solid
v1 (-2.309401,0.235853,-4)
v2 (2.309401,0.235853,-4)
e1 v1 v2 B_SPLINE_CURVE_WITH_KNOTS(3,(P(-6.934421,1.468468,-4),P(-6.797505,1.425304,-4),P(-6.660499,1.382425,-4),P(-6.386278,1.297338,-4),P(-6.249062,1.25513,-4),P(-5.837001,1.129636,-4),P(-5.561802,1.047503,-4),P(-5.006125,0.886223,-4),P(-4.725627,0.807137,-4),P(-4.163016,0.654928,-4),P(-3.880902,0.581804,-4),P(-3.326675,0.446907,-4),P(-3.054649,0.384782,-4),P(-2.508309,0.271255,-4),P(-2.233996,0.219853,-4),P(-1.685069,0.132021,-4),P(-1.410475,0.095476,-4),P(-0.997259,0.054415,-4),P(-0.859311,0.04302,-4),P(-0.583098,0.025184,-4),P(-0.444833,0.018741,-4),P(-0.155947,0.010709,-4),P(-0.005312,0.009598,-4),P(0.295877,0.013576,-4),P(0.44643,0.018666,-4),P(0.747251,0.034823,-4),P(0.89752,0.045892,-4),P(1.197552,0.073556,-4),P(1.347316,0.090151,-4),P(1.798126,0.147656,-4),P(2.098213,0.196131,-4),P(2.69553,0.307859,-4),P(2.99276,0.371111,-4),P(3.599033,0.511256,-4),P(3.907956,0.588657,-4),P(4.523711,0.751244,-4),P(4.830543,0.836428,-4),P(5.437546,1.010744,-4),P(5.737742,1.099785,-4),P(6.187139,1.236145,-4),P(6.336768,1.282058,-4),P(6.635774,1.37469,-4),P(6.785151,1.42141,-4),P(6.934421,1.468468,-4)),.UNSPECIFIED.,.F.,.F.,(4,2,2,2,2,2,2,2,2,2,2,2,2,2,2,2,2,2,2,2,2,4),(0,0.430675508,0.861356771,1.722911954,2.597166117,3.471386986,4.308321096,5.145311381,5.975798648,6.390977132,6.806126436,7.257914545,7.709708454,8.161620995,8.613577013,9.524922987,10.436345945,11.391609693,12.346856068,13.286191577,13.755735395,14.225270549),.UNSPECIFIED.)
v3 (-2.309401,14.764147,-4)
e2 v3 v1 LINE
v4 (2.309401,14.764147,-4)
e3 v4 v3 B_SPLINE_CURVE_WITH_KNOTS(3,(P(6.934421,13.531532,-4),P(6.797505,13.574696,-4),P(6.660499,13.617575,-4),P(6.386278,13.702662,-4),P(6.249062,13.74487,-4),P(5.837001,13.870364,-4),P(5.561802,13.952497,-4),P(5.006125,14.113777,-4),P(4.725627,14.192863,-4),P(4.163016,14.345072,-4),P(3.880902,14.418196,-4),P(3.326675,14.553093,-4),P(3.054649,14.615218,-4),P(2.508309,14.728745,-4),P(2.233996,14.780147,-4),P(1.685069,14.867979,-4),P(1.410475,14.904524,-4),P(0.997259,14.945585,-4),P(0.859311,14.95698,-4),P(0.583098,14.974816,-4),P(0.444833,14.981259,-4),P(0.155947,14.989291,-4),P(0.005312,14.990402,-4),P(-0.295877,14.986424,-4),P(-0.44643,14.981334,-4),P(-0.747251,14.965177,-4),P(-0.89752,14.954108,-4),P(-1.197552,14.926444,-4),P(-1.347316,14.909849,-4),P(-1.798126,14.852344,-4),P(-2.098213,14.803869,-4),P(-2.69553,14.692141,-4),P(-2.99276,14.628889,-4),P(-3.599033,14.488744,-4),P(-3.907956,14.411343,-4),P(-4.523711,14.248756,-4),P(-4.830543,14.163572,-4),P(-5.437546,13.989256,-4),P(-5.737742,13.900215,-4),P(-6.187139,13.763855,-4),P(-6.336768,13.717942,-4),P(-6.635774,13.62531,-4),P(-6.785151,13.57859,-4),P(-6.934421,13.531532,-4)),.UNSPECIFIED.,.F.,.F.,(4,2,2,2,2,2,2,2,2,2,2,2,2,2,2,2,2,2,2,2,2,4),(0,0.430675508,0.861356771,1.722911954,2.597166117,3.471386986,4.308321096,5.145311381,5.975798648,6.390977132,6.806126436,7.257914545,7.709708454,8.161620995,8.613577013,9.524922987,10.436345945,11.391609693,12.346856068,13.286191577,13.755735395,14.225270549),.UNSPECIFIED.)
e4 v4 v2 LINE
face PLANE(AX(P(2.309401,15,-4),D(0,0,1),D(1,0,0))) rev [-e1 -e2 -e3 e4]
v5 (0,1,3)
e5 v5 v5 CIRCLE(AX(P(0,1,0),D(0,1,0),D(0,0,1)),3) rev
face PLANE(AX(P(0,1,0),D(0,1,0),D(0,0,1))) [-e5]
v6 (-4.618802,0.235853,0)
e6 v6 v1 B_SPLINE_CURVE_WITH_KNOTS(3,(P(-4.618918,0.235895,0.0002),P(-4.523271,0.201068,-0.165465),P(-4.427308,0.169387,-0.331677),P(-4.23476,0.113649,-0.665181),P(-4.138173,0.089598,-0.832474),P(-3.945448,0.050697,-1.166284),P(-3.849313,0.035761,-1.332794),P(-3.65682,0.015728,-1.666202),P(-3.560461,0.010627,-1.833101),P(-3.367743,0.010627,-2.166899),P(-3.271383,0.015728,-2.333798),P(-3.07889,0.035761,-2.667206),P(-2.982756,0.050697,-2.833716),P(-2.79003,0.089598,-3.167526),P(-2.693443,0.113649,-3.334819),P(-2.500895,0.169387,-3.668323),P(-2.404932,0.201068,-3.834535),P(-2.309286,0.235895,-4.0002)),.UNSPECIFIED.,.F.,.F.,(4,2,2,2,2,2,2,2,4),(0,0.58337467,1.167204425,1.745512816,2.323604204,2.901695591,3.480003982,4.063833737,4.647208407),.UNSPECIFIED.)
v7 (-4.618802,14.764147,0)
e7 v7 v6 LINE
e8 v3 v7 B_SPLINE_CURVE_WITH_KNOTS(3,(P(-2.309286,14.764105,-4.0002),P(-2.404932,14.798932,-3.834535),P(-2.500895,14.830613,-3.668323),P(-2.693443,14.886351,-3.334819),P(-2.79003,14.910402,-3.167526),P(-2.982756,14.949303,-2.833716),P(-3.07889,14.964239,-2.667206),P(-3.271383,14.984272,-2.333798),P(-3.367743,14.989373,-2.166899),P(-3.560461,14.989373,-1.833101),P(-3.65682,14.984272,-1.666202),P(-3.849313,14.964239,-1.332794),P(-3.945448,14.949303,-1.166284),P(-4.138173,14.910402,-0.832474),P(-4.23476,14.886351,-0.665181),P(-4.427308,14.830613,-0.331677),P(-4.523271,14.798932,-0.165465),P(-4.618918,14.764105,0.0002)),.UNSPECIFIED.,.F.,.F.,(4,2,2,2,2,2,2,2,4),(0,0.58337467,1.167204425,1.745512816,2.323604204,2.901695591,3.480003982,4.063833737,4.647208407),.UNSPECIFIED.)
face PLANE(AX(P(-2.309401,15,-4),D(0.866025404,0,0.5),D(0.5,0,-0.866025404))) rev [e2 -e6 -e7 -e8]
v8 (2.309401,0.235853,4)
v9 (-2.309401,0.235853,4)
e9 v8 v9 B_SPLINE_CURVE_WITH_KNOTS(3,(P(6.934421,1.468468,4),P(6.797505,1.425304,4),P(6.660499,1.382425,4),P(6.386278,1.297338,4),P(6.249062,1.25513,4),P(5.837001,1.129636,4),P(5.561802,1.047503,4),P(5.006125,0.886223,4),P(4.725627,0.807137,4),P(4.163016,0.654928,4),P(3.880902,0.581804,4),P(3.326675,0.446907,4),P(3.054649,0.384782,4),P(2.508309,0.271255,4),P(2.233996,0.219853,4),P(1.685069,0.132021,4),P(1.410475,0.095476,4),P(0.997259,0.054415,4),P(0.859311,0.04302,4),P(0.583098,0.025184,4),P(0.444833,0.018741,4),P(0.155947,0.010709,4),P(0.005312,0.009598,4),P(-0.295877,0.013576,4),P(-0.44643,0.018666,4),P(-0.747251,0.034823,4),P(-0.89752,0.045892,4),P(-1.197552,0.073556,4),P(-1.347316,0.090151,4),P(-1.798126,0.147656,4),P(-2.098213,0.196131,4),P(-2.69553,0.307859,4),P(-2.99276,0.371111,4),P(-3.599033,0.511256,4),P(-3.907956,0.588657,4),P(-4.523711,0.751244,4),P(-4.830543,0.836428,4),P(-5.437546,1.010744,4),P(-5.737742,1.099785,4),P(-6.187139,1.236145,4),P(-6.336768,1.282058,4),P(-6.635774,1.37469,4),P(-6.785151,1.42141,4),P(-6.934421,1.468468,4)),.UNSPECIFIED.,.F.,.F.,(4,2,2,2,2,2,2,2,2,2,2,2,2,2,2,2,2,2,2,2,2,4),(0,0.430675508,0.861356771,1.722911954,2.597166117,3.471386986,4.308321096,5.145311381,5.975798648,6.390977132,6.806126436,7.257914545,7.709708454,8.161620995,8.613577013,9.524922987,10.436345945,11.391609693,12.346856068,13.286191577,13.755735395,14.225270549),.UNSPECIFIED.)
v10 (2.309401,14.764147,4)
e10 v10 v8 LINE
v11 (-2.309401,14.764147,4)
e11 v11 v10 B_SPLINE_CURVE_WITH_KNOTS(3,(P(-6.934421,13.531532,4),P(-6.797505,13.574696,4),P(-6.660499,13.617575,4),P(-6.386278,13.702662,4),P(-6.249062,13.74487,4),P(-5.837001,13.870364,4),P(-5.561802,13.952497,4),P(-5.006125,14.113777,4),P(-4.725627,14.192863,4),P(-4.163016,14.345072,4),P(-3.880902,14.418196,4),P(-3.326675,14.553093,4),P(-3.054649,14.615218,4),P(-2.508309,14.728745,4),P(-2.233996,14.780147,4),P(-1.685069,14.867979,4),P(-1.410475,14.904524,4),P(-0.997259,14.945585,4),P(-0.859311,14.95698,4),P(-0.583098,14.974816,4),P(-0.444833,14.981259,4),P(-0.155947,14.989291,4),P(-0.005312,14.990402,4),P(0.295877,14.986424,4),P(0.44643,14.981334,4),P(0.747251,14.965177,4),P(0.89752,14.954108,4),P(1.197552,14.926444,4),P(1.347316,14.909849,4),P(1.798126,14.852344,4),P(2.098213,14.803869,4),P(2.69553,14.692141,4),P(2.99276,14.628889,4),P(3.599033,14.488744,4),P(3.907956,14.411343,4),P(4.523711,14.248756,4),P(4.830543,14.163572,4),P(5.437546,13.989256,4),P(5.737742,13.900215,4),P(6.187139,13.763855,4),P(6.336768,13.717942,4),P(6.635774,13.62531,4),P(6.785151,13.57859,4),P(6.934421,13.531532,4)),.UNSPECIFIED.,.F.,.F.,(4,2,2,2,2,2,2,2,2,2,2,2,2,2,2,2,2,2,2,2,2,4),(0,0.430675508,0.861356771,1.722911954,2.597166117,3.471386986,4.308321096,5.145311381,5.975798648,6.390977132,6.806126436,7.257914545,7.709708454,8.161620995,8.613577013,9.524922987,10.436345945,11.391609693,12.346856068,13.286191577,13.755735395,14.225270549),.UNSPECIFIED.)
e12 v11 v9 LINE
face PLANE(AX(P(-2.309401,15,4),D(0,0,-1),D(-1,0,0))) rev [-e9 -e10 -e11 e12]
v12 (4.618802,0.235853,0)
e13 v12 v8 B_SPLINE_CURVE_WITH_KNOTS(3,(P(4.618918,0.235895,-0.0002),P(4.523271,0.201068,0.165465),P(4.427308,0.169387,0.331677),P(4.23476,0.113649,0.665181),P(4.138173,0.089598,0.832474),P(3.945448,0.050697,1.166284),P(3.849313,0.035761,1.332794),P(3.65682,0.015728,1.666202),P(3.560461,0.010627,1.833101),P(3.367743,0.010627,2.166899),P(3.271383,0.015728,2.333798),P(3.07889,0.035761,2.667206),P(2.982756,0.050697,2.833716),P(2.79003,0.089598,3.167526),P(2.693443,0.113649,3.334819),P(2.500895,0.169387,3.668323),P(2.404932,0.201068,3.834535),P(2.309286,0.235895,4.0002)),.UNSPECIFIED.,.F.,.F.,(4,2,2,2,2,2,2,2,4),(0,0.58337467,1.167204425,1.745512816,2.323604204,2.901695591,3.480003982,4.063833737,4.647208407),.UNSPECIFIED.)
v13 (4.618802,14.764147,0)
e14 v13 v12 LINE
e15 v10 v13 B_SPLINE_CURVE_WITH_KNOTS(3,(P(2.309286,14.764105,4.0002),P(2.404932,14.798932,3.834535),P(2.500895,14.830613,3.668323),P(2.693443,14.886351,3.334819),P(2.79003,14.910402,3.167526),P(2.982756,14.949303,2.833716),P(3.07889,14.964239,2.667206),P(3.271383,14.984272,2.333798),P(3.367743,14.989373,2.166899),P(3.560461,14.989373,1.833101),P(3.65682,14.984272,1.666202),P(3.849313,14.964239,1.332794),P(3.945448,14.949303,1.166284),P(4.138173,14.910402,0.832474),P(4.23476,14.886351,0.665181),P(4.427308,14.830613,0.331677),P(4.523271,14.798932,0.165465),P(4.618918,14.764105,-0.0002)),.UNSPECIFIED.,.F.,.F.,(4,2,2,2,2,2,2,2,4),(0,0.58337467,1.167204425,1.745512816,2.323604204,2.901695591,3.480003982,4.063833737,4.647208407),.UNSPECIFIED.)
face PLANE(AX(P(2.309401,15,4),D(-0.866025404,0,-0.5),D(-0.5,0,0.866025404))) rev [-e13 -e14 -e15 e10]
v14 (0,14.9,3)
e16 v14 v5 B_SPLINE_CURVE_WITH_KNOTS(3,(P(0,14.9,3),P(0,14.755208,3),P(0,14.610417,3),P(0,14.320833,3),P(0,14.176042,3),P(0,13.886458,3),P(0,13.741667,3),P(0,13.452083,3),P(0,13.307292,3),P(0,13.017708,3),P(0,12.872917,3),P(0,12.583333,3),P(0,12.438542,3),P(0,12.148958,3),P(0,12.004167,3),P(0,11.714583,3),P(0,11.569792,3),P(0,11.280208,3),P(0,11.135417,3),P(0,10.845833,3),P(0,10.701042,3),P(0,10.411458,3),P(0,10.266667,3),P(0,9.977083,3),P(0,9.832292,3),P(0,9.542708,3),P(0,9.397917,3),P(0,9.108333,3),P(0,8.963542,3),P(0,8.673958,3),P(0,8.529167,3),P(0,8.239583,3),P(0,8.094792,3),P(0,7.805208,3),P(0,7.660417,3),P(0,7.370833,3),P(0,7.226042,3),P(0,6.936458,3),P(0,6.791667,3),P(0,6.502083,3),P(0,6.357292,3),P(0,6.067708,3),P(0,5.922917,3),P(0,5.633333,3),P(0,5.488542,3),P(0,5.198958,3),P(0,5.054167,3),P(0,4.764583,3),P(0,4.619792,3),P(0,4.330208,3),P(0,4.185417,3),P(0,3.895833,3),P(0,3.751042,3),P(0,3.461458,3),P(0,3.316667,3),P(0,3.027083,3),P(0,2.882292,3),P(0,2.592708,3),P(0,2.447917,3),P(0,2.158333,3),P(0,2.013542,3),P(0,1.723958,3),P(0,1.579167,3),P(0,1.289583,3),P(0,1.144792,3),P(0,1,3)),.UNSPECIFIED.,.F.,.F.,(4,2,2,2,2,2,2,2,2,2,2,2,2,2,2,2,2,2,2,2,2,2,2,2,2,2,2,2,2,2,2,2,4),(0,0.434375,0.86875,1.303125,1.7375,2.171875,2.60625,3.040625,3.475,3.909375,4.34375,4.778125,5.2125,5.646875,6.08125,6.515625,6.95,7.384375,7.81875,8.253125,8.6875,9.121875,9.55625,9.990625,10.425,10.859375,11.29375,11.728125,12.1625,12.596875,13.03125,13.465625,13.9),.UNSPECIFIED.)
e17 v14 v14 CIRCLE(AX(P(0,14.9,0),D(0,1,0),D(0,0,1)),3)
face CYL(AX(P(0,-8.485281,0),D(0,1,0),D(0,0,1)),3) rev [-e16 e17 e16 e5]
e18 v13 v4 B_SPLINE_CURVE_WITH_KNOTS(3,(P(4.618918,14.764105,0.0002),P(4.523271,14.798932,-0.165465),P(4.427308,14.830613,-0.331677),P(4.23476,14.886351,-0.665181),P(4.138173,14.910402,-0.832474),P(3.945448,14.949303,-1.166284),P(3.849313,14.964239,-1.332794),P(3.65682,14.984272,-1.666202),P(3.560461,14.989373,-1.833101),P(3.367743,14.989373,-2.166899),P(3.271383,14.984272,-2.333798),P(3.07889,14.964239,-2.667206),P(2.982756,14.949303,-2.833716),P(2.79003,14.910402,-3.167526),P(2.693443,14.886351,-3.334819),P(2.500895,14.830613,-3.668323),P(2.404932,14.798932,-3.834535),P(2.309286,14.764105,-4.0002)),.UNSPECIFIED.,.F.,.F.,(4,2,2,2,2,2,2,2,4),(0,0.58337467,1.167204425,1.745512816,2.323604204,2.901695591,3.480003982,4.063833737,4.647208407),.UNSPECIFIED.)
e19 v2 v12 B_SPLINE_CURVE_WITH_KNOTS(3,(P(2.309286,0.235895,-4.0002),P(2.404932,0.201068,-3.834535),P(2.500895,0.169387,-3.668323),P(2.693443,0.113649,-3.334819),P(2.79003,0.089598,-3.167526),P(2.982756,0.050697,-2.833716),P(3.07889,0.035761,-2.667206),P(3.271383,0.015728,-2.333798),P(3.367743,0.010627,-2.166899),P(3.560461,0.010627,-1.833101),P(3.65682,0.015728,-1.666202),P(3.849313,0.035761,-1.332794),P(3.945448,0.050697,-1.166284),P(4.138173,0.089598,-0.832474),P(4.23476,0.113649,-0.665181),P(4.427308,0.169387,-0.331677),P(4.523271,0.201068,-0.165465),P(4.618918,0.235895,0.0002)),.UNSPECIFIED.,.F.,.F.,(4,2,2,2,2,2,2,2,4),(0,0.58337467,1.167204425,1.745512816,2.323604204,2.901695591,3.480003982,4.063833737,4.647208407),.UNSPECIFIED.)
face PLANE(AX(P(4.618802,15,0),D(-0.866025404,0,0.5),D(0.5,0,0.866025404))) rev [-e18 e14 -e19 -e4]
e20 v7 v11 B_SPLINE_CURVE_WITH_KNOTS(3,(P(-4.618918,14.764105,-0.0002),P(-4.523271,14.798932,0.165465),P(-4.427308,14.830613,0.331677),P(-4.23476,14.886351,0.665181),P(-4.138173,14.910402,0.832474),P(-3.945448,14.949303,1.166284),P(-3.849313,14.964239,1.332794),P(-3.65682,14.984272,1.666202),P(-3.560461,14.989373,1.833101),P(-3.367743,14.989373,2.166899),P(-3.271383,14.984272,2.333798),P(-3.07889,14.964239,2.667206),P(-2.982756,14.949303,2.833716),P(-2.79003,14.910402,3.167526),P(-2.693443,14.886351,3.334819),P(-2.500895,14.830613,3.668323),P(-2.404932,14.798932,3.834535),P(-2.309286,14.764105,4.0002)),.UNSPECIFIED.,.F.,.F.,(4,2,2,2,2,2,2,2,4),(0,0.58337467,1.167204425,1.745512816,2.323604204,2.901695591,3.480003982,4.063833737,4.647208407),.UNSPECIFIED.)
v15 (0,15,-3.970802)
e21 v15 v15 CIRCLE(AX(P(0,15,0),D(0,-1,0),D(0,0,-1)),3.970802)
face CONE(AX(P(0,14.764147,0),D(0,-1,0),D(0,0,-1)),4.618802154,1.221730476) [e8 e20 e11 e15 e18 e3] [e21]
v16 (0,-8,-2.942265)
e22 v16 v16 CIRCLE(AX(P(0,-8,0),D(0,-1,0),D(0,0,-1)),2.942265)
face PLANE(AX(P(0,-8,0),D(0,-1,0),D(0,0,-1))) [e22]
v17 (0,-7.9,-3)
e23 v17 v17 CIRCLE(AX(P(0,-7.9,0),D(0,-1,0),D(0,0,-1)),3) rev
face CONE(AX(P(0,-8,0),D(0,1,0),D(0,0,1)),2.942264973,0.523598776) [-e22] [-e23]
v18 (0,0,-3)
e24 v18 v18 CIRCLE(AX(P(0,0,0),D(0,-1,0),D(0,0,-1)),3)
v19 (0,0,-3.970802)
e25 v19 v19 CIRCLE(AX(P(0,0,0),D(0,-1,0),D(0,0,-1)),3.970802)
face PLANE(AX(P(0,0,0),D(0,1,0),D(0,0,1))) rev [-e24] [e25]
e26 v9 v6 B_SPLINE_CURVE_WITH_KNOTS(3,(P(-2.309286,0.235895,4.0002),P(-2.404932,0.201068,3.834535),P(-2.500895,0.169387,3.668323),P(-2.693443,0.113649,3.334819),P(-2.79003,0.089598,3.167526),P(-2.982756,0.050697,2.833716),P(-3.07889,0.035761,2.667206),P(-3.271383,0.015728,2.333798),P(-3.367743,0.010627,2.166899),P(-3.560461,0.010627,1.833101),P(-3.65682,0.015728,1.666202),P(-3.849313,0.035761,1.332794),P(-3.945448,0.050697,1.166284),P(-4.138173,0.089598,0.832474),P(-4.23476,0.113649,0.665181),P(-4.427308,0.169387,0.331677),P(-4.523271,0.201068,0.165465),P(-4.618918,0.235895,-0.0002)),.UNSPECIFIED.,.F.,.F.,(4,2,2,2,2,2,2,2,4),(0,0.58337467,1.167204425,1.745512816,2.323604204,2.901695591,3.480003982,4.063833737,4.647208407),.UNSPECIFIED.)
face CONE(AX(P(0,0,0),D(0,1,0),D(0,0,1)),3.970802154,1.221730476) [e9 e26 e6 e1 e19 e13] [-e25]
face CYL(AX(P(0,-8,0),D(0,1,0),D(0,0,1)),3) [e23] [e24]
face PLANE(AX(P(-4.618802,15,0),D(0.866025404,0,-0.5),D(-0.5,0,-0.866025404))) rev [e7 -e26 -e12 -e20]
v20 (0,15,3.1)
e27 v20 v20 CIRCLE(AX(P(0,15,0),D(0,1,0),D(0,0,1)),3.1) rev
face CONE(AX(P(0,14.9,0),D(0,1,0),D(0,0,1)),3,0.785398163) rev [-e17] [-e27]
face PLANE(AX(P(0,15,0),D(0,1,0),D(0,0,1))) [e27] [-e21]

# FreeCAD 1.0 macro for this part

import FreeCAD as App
import Part
import Sketcher

V = App.Vector
Q = App.Units.Quantity


def edges_at(feature, points):
    """Names of the edges that pass closest to the given points."""
    edges = feature.Shape.Edges
    near = lambda p: min(range(len(edges)), key=lambda i: edges[i].distToShape(Part.Vertex(*p))[0])
    return sorted({f"Edge{near(p) + 1}" for p in points})


def add_polygon(sketch, points):
    """Adds a closed chain of lines whose ends are joined by coincident constraints."""
    first, n = sketch.GeometryCount, len(points)
    for a, b in zip(points, points[1:] + points[:1]):
        sketch.addGeometry(Part.LineSegment(App.Vector(*a, 0), App.Vector(*b, 0)), False)
    for i in range(n):
        sketch.addConstraint(Sketcher.Constraint("Coincident", first + i, 2, first + (i + 1) % n, 1))

doc = App.newDocument("Part")
body = doc.addObject("PartDesign::Body", "Body")

# Sketch on XZ plane
sketch1 = doc.addObject("Sketcher::SketchObject", "Sketch")
body.addObject(sketch1)
sketch1.AttachmentSupport = (doc.XZ_Plane, [""])
sketch1.MapMode = "FlatFace"
add_polygon(sketch1, [(2.309401, -4), (-2.309401, -4), (-4.618802, 0), (-2.309401, 4), (2.309401, 4), (4.618802, 0)])  # lines 0-5
sketch1.addConstraint([
    Sketcher.Constraint("Horizontal", 0),
    Sketcher.Constraint("Horizontal", 3),
    Sketcher.Constraint("Symmetric", 0, 2, 3, 2, -1, 1),
    Sketcher.Constraint("Symmetric", 1, 2, 4, 2, -1, 1),
    Sketcher.Constraint("PointOnObject", 1, 2, -1),
    Sketcher.Constraint("Parallel", 2, 5),
    Sketcher.Constraint("Vertical", 0, 2, 2, 2),
    Sketcher.Constraint("Angle", 1, Q("120 deg")),
    Sketcher.Constraint("DistanceY", 0, 2, -1, 1, Q("4 mm")),
    Sketcher.Constraint("DistanceX", 0, 2, -1, 1, Q("2.309401 mm")),
])
pad1 = doc.addObject("PartDesign::Pad", "Pad")
body.addObject(pad1)
pad1.Profile = sketch1
pad1.Length = 15
pad1.Reversed = True

# Sketch on XZ plane
sketch2 = doc.addObject("Sketcher::SketchObject", "Sketch001")
body.addObject(sketch2)
sketch2.AttachmentSupport = (doc.XZ_Plane, [""])
sketch2.MapMode = "FlatFace"
sketch2.addGeometry(Part.Circle(V(0, 0, 0), V(0, 0, 1), 3), False)
sketch2.addConstraint([
    Sketcher.Constraint("Coincident", 0, 3, -1, 1),
    Sketcher.Constraint("Diameter", 0, Q("6 mm")),
])
pad2 = doc.addObject("PartDesign::Pad", "Pad001")
body.addObject(pad2)
pad2.Profile = sketch2
pad2.Length = 8

# Sketch on XZ plane
sketch3 = doc.addObject("Sketcher::SketchObject", "Sketch002")
body.addObject(sketch3)
sketch3.AttachmentSupport = (doc.XZ_Plane, [""])
sketch3.MapMode = "FlatFace"
sketch3.AttachmentOffset = App.Placement(V(0, 0, -15), App.Rotation())
sketch3.addGeometry(Part.Circle(V(0, 0, 0), V(0, 0, 1), 3), False)
sketch3.addConstraint([
    Sketcher.Constraint("Coincident", 0, 3, -1, 1),
    Sketcher.Constraint("Diameter", 0, Q("6 mm")),
])
pocket1 = doc.addObject("PartDesign::Pocket", "Pocket")
body.addObject(pocket1)
pocket1.Profile = sketch3
pocket1.Length = 14
pocket1.Reversed = True

# Sketch on XY plane
sketch4 = doc.addObject("Sketcher::SketchObject", "Sketch003")
body.addObject(sketch4)
sketch4.AttachmentSupport = (doc.XY_Plane, [""])
sketch4.MapMode = "FlatFace"
add_polygon(sketch4, [(-4.618802, 0.235853), (-4.618802, 0), (-3.970802, 0)])  # lines 0-2
add_polygon(sketch4, [(-4.618802, 15), (-4.618802, 14.764147), (-3.970802, 15)])  # lines 3-5
sketch4.addConstraint([
    Sketcher.Constraint("Vertical", 0),
    Sketcher.Constraint("Horizontal", 1),
    Sketcher.Constraint("Vertical", 3),
    Sketcher.Constraint("Horizontal", 5),
    Sketcher.Constraint("PointOnObject", 0, 2, -1),
    Sketcher.Constraint("Vertical", 2, 2, 3, 2),
    Sketcher.Constraint("Vertical", 1, 2, 4, 2),
    Sketcher.Constraint("Equal", 0, 3),
    Sketcher.Constraint("Angle", 2, Q("160 deg")),
    Sketcher.Constraint("DistanceY", -1, 1, 4, 2, Q("15 mm")),
    Sketcher.Constraint("DistanceX", 1, 1, 1, 2, Q("0.648 mm")),
    Sketcher.Constraint("DistanceX", 0, 2, -1, 1, Q("4.618802 mm")),
])
groove = doc.addObject("PartDesign::Groove", "Groove")
body.addObject(groove)
groove.Profile = sketch4
groove.ReferenceAxis = (sketch4, ["V_Axis"])
groove.Angle = 360
doc.recompute()

chamfer = doc.addObject("PartDesign::Chamfer", "Chamfer")
body.addObject(chamfer)
chamfer.Base = (groove, edges_at(groove, [(0, -8, 3)]))
chamfer.ChamferType = "Two distances"
chamfer.Size = 0.1
chamfer.Size2 = 0.057735
doc.recompute()

chamfer2 = doc.addObject("PartDesign::Chamfer", "Chamfer001")
body.addObject(chamfer2)
chamfer2.Base = (chamfer, edges_at(chamfer, [(0, 15, 3)]))
chamfer2.Size = 0.1

doc.recompute()
